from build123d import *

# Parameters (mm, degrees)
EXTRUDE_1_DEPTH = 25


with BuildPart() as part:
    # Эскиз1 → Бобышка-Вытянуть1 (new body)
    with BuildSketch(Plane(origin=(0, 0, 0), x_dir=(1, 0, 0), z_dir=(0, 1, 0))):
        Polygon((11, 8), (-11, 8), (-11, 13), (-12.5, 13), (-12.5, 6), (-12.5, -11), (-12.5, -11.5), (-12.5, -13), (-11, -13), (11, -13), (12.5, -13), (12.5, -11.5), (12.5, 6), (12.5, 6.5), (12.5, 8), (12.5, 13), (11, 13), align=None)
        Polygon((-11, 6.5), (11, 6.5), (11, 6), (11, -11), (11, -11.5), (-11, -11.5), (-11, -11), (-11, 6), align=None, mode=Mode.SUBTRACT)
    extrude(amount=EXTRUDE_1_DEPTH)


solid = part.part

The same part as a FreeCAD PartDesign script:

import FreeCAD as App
import Part
import Sketcher
from FreeCAD import Vector
Q = App.Units.Quantity

doc = App.newDocument("Part")
body = doc.addObject("PartDesign::Body", "Body")

sketch1 = doc.addObject("Sketcher::SketchObject", "Sketch")
body.addObject(sketch1)
sketch1.AttachmentSupport = (doc.XZ_Plane, [""])
sketch1.MapMode = "FlatFace"
sketch1.addGeometry([
    Part.LineSegment(Vector(11, -8, 0), Vector(-11, -8, 0)),
    Part.LineSegment(Vector(-11, -8, 0), Vector(-11, -13, 0)),
    Part.LineSegment(Vector(-11, -13, 0), Vector(-12.5, -13, 0)),
    Part.LineSegment(Vector(-12.5, -13, 0), Vector(-12.5, 13, 0)),
    Part.LineSegment(Vector(-12.5, 13, 0), Vector(12.5, 13, 0)),
    Part.LineSegment(Vector(12.5, 13, 0), Vector(12.5, -13, 0)),
    Part.LineSegment(Vector(12.5, -13, 0), Vector(11, -13, 0)),
    Part.LineSegment(Vector(11, -13, 0), Vector(11, -8, 0)),
    Part.LineSegment(Vector(-11, 11.5, 0), Vector(-11, -6.5, 0)),
    Part.LineSegment(Vector(-11, -6.5, 0), Vector(11, -6.5, 0)),
    Part.LineSegment(Vector(11, -6.5, 0), Vector(11, 11.5, 0)),
    Part.LineSegment(Vector(11, 11.5, 0), Vector(-11, 11.5, 0)),
], False)
sketch1.addConstraint([
    Sketcher.Constraint("Coincident", 0, 2, 1, 1),
    Sketcher.Constraint("Coincident", 1, 2, 2, 1),
    Sketcher.Constraint("Coincident", 2, 2, 3, 1),
    Sketcher.Constraint("Coincident", 3, 2, 4, 1),
    Sketcher.Constraint("Coincident", 4, 2, 5, 1),
    Sketcher.Constraint("Coincident", 5, 2, 6, 1),
    Sketcher.Constraint("Coincident", 6, 2, 7, 1),
    Sketcher.Constraint("Coincident", 7, 2, 0, 1),
    Sketcher.Constraint("Coincident", 8, 2, 9, 1),
    Sketcher.Constraint("Coincident", 9, 2, 10, 1),
    Sketcher.Constraint("Coincident", 10, 2, 11, 1),
    Sketcher.Constraint("Coincident", 11, 2, 8, 1),
    Sketcher.Constraint("Horizontal", 0),
    Sketcher.Constraint("Vertical", 1),
    Sketcher.Constraint("Horizontal", 2),
    Sketcher.Constraint("Vertical", 3),
    Sketcher.Constraint("Horizontal", 4),
    Sketcher.Constraint("Vertical", 5),
    Sketcher.Constraint("Horizontal", 6),
    Sketcher.Constraint("Vertical", 7),
    Sketcher.Constraint("Vertical", 8),
    Sketcher.Constraint("Horizontal", 9),
    Sketcher.Constraint("Vertical", 10),
    Sketcher.Constraint("Horizontal", 11),
    Sketcher.Constraint("Symmetric", 2, 2, 4, 2, -1, 1),
    Sketcher.Constraint("Symmetric", 1, 2, 6, 2, -2),
    Sketcher.Constraint("Vertical", 1, 2, 8, 2),
    Sketcher.Constraint("Vertical", 7, 2, 9, 2),
    Sketcher.Constraint("DistanceX", 0, 2, 0, 1, Q("22 mm")),
    Sketcher.Constraint("DistanceX", 4, 1, 4, 2, Q("25 mm")),
    Sketcher.Constraint("DistanceY", 1, 2, 1, 1, Q("5 mm")),
    Sketcher.Constraint("DistanceY", 3, 1, 3, 2, Q("26 mm")),
    Sketcher.Constraint("DistanceY", 8, 2, 8, 1, Q("18 mm")),
    Sketcher.Constraint("DistanceY", 8, 2, -1, 1, Q("6.5 mm")),
])
pad1 = doc.addObject("PartDesign::Pad", "Pad")
body.addObject(pad1)
pad1.Profile = sketch1
pad1.Length = 25
pad1.Reversed = True

doc.recompute()
